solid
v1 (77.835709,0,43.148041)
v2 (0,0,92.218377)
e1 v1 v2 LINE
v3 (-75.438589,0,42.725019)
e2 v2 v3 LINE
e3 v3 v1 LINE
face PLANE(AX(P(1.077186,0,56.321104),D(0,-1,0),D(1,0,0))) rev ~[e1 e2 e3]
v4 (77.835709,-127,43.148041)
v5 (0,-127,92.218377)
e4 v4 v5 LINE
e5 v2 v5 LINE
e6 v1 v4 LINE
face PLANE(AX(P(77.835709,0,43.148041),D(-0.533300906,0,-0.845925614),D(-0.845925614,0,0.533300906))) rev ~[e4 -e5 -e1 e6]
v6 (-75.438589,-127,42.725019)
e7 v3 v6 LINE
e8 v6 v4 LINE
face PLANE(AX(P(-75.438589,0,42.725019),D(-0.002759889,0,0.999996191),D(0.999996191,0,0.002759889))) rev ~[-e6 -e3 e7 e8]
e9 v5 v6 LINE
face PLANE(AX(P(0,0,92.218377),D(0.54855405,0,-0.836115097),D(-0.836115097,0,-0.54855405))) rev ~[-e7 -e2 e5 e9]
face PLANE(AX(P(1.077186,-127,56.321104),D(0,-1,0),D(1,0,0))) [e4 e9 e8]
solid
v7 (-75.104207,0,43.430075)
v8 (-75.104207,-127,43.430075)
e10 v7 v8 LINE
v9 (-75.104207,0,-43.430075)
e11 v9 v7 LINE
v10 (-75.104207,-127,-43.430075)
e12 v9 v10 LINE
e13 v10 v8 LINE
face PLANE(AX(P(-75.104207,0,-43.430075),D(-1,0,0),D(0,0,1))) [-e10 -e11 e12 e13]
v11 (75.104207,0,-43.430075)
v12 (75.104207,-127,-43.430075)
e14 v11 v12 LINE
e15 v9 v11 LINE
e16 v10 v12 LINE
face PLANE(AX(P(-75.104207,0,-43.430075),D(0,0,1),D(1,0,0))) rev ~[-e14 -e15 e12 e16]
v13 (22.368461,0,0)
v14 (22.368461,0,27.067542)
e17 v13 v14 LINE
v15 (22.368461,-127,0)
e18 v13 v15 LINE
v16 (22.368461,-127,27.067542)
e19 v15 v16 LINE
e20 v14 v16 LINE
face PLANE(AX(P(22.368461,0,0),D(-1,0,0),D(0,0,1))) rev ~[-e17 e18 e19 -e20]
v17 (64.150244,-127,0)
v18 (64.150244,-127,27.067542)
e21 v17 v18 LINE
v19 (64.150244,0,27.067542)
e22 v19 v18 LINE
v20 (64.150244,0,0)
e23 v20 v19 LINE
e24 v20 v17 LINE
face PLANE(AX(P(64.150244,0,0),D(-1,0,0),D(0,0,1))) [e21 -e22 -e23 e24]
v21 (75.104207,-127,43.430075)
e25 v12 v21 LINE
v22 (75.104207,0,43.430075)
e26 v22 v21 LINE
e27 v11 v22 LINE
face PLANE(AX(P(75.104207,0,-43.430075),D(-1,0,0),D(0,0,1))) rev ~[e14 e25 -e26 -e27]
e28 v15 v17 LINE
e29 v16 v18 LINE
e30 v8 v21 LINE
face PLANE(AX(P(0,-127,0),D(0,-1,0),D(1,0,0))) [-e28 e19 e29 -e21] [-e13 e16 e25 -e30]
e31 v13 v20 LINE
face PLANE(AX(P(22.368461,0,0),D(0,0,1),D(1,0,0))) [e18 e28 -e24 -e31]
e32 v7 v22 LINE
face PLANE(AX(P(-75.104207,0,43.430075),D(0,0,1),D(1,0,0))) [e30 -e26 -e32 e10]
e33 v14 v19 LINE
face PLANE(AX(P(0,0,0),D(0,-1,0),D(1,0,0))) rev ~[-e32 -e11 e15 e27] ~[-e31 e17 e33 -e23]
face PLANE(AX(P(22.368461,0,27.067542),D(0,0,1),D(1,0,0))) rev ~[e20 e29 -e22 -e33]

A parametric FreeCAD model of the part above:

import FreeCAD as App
import Part
import Sketcher

V = App.Vector
Q = App.Units.Quantity

doc = App.newDocument("Part")
params = doc.addObject("Spreadsheet::Sheet", "Params")
for row, (alias, value) in enumerate([
    ("pad1_length", "5 in"),
    ("pad2_length", "5 in"),
], start=1):
    params.set(f"A{row}", alias)
    params.set(f"B{row}", "=" + value)
    params.setAlias(f"B{row}", alias)

body = doc.addObject("PartDesign::Body", "Body")

sketch1 = body.newObject("Sketcher::SketchObject", "Sketch")
sketch1.AttachmentSupport = (doc.getObject("XZ_Plane"), [""])
sketch1.MapMode = "FlatFace"
sketch1.addGeometry([
    Part.LineSegment(V(0, 92, 0), V(-75, 43, 0)),
    Part.LineSegment(V(-75, 43, 0), V(78, 43, 0)),
    Part.LineSegment(V(78, 43, 0), V(0, 92, 0)),
], False)
sketch1.addConstraint([
    Sketcher.Constraint("Coincident", 0, 2, 1, 1),
    Sketcher.Constraint("Coincident", 1, 2, 2, 1),
    Sketcher.Constraint("Coincident", 2, 2, 0, 1),
    Sketcher.Constraint("PointOnObject", 2, 2, -2),
    Sketcher.Constraint("Distance", 1, Q("153.274881 mm")),
    Sketcher.Constraint("DistanceX", 0, 2, -1, 1, Q("75.438589 mm")),
    Sketcher.Constraint("DistanceY", -1, 1, 0, 2, Q("42.725019 mm")),
    Sketcher.Constraint("DistanceY", -1, 1, 1, 2, Q("43.148041 mm")),
    Sketcher.Constraint("Distance", 0, Q("90.225125 mm")),
])
pad1 = body.newObject("PartDesign::Pad", "Pad")
pad1.Profile = sketch1
pad1.setExpression("Length", "Params.pad1_length")
body2 = doc.addObject("PartDesign::Body", "Body001")

sketch2 = body2.newObject("Sketcher::SketchObject", "Sketch001")
sketch2.AttachmentSupport = (doc.getObject("XZ_Plane001"), [""])
sketch2.MapMode = "FlatFace"
sketch2.addGeometry([
    Part.LineSegment(V(-75, 43, 0), V(-75, -43, 0)),
    Part.LineSegment(V(-75, -43, 0), V(75, -43, 0)),
    Part.LineSegment(V(75, -43, 0), V(75, 43, 0)),
    Part.LineSegment(V(75, 43, 0), V(-75, 43, 0)),
    Part.LineSegment(V(64, 0, 0), V(22, 0, 0)),
    Part.LineSegment(V(22, 0, 0), V(22, 27, 0)),
    Part.LineSegment(V(22, 27, 0), V(64, 27, 0)),
    Part.LineSegment(V(64, 27, 0), V(64, 0, 0)),
], False)
sketch2.addConstraint([
    Sketcher.Constraint("Coincident", 0, 2, 1, 1),
    Sketcher.Constraint("Coincident", 1, 2, 2, 1),
    Sketcher.Constraint("Coincident", 2, 2, 3, 1),
    Sketcher.Constraint("Coincident", 3, 2, 0, 1),
    Sketcher.Constraint("Coincident", 4, 2, 5, 1),
    Sketcher.Constraint("Coincident", 5, 2, 6, 1),
    Sketcher.Constraint("Coincident", 6, 2, 7, 1),
    Sketcher.Constraint("Coincident", 7, 2, 4, 1),
    Sketcher.Constraint("Vertical", 0),
    Sketcher.Constraint("Horizontal", 1),
    Sketcher.Constraint("Vertical", 2),
    Sketcher.Constraint("Horizontal", 3),
    Sketcher.Constraint("Horizontal", 4),
    Sketcher.Constraint("Vertical", 5),
    Sketcher.Constraint("Horizontal", 6),
    Sketcher.Constraint("Vertical", 7),
    Sketcher.Constraint("Symmetric", 0, 2, 2, 2, -1, 1),
    Sketcher.Constraint("PointOnObject", 4, 2, -1),
    Sketcher.Constraint("DistanceX", -1, 1, 6, 2, Q("2.5256002 in")),
    Sketcher.Constraint("DistanceY", 0, 2, 0, 1, Q("86.86015 mm")),
    Sketcher.Constraint("DistanceX", 1, 1, 1, 2, Q("150.208414 mm")),
    Sketcher.Constraint("DistanceX", 4, 2, 4, 1, Q("41.781783 mm")),
    Sketcher.Constraint("DistanceY", 5, 1, 5, 2, Q("27.067542 mm")),
])
pad2 = body2.newObject("PartDesign::Pad", "Pad001")
pad2.Profile = sketch2
pad2.setExpression("Length", "Params.pad2_length")

doc.recompute()
